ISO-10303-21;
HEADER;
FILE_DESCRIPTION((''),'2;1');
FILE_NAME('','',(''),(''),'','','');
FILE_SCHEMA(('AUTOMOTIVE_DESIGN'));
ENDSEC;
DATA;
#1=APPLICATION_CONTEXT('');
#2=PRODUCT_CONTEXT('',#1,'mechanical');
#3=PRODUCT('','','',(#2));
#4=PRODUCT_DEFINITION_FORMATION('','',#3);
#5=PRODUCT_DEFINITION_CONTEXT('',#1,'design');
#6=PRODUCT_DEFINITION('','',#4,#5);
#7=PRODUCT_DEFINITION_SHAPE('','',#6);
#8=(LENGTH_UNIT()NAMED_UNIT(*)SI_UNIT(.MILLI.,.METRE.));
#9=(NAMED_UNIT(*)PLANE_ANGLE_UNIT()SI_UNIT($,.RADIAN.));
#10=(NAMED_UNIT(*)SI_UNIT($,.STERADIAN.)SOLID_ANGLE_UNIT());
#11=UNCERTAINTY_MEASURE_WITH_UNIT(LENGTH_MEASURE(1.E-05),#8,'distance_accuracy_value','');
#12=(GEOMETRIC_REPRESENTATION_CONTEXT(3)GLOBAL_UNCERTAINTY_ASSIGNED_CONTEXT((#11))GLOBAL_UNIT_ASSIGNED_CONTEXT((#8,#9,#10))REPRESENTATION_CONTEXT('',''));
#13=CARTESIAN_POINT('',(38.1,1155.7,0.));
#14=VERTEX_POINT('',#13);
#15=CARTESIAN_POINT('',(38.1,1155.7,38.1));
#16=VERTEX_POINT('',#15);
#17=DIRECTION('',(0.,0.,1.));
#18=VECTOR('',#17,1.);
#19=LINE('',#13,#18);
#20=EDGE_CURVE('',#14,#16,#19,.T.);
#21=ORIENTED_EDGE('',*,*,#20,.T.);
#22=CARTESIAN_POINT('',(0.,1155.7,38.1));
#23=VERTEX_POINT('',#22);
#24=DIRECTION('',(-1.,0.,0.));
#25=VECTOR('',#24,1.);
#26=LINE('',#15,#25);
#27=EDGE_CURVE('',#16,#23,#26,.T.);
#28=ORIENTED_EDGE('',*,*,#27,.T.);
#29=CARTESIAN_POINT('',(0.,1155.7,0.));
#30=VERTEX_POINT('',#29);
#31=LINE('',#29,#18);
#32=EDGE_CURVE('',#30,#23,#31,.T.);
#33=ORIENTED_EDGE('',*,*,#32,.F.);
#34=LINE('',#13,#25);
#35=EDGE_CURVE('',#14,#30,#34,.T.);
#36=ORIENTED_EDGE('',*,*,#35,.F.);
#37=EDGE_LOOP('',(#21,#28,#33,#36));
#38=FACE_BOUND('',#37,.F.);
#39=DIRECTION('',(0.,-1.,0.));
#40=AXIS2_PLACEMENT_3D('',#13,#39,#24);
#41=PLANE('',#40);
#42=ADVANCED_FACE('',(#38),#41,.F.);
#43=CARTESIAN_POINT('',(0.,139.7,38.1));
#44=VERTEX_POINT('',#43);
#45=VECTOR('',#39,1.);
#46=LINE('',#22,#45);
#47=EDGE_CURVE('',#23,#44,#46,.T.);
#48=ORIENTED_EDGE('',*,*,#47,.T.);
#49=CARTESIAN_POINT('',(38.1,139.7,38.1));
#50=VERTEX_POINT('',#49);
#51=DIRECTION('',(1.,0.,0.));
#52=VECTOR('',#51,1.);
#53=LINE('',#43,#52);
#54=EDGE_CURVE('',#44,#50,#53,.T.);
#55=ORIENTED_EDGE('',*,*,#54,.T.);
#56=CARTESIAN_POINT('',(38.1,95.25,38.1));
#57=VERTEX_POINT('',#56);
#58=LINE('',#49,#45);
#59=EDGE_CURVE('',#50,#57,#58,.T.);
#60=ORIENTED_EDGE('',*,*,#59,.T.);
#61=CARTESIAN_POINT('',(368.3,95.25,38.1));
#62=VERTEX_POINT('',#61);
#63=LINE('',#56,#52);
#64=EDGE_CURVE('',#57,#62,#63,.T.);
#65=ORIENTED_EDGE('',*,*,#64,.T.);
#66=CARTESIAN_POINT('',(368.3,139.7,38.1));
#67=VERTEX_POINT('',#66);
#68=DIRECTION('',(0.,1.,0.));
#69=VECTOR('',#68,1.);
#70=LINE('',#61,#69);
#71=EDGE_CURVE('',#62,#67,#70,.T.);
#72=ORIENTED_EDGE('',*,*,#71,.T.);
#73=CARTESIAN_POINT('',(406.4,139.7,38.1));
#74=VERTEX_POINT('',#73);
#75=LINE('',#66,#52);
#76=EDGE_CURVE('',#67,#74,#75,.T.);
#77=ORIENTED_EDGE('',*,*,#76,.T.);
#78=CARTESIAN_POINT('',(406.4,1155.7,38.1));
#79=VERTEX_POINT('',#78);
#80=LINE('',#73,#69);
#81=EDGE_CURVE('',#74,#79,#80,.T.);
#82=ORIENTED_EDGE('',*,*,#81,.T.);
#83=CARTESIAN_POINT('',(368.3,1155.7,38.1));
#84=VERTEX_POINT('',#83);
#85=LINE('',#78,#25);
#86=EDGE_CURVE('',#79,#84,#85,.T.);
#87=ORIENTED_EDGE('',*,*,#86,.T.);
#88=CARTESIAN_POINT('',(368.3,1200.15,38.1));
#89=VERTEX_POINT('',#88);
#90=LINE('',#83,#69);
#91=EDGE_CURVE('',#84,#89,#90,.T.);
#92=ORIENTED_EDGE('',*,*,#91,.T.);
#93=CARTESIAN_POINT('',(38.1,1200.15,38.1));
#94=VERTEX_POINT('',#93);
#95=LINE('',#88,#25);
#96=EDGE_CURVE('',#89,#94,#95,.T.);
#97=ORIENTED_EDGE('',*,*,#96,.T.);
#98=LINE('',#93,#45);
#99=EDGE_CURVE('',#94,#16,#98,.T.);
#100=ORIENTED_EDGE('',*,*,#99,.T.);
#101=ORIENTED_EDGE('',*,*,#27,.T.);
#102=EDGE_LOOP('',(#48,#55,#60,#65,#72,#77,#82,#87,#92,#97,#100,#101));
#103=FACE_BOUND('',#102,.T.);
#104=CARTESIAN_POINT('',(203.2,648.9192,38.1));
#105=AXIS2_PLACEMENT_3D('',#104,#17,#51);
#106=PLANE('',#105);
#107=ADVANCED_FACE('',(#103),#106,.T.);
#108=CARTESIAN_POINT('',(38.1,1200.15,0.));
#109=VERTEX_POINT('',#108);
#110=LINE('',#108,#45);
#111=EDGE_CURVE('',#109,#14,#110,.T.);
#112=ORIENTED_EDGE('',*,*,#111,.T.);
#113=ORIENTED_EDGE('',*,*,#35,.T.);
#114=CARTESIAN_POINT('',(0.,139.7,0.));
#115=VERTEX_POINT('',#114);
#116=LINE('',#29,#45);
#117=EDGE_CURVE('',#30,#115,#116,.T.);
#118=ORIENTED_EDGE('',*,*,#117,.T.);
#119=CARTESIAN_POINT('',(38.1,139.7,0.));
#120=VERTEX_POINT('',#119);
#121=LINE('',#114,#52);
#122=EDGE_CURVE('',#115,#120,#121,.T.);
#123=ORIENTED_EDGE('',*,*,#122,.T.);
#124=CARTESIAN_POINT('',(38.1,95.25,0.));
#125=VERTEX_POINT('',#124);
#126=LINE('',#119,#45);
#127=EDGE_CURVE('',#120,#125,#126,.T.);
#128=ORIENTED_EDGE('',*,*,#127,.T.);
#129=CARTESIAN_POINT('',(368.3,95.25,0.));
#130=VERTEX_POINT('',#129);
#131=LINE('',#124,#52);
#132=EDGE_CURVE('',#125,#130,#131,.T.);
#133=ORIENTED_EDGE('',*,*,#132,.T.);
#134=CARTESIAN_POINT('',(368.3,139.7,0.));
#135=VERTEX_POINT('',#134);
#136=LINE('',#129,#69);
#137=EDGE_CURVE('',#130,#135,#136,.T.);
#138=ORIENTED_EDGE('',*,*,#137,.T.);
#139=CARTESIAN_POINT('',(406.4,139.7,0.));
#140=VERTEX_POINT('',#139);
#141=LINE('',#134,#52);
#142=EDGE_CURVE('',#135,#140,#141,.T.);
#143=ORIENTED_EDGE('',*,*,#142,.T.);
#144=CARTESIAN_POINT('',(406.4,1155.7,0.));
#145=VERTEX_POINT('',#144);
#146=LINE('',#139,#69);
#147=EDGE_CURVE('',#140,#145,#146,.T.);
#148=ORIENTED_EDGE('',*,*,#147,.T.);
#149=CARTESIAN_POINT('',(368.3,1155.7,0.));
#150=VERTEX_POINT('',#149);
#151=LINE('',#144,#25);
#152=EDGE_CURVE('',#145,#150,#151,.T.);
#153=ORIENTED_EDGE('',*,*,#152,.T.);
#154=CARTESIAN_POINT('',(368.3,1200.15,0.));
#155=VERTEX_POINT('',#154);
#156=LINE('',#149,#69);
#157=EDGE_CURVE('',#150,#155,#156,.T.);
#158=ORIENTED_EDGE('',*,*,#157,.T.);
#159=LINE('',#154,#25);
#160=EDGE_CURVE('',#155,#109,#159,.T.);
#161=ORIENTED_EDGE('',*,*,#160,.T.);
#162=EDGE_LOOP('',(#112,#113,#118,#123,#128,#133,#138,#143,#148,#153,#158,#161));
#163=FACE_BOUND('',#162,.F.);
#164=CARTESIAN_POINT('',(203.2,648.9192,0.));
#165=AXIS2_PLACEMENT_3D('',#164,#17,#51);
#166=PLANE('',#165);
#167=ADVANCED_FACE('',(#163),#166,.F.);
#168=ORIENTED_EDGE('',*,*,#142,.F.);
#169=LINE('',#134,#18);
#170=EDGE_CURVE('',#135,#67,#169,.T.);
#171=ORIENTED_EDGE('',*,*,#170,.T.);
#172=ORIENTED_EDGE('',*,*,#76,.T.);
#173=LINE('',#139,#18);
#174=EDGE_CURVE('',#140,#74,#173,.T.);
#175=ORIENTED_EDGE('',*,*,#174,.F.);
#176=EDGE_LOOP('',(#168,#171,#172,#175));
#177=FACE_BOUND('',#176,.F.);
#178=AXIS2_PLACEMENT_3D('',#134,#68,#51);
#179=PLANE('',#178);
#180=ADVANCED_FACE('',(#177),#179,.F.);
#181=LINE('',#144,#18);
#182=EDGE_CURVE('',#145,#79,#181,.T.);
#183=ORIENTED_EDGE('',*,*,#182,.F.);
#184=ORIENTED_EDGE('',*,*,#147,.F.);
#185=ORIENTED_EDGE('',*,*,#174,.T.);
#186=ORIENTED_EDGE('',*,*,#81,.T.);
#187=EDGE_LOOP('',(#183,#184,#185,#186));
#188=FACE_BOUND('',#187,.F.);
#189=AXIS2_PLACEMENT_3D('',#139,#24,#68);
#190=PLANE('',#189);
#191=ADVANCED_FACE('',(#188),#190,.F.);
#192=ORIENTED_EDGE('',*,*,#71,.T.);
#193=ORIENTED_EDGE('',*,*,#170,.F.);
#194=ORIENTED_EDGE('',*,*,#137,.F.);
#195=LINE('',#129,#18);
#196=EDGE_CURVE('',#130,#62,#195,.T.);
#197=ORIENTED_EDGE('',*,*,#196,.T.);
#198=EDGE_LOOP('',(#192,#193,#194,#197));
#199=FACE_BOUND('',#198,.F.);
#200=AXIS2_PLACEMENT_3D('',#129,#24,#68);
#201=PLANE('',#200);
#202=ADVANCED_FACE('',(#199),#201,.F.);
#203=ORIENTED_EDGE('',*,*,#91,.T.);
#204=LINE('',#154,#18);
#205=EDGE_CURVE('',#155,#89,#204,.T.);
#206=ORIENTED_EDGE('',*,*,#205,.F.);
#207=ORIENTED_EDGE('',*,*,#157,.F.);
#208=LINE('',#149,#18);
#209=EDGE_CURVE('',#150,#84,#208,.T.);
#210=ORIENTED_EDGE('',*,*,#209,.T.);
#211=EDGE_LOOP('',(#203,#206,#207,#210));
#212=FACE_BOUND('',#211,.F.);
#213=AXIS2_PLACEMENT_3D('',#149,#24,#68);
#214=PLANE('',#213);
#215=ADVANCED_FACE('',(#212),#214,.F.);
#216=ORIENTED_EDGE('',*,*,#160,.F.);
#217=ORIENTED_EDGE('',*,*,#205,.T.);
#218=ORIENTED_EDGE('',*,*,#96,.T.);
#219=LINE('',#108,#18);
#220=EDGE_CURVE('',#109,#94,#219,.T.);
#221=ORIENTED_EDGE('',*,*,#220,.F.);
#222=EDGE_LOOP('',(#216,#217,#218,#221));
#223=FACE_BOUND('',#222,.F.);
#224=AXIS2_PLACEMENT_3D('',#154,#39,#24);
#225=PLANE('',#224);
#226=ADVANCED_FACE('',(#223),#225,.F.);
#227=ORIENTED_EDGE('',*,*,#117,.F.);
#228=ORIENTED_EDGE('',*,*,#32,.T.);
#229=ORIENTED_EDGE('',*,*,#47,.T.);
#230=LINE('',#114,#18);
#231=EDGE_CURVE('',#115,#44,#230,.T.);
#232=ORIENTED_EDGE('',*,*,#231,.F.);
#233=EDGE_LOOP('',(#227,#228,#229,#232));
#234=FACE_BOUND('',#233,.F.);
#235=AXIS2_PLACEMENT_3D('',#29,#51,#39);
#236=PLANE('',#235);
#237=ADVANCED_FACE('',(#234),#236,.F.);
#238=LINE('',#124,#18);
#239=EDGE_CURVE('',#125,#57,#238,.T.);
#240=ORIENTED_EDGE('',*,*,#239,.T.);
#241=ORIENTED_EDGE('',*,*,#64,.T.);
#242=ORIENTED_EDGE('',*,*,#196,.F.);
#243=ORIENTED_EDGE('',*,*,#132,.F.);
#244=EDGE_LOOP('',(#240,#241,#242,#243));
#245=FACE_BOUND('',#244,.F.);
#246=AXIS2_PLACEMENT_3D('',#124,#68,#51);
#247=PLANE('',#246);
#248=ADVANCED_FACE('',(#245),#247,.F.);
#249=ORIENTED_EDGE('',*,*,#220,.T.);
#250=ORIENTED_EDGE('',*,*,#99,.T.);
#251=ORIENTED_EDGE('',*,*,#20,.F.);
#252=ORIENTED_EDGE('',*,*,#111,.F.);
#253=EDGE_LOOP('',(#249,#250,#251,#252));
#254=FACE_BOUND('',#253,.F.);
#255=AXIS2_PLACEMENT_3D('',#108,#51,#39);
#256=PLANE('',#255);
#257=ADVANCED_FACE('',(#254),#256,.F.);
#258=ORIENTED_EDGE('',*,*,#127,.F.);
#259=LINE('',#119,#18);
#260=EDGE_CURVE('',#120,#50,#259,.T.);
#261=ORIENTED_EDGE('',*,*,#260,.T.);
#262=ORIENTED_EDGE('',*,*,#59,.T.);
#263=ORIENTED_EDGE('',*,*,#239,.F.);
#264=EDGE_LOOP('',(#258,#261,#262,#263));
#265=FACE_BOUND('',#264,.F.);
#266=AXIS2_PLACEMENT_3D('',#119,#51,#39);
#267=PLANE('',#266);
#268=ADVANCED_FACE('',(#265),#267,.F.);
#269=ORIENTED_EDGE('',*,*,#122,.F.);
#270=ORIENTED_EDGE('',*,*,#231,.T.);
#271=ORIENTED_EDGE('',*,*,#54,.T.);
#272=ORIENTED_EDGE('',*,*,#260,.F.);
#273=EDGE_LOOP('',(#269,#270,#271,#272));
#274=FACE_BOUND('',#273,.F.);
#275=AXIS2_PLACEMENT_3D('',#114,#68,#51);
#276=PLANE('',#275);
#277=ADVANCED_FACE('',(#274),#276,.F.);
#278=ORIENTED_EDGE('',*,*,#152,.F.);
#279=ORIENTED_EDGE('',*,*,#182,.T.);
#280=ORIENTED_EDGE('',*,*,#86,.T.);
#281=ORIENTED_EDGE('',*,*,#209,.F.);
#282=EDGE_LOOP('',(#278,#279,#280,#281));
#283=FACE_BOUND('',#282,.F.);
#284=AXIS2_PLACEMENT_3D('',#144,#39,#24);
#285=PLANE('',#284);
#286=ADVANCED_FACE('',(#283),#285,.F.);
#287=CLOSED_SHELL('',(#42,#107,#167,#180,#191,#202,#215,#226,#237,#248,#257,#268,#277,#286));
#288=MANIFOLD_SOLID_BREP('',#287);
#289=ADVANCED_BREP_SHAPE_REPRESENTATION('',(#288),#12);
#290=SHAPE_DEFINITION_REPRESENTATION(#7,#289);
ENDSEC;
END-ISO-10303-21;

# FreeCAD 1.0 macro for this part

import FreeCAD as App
import Part
import Sketcher

V = App.Vector
Q = App.Units.Quantity

doc = App.newDocument("Part")
params = doc.addObject("Spreadsheet::Sheet", "Params")
for row, (alias, value) in enumerate([
    ("sketch1_width", "13 in"),
    ("sketch1_height", "40 in"),
    ("sketch1_width2", "1.5 in"),
    ("sketch1_height2", "1.75 in"),
    ("pad1_length", "1.5 in"),
], start=1):
    params.set(f"A{row}", alias)
    params.set(f"B{row}", "=" + value)
    params.setAlias(f"B{row}", alias)

body = doc.addObject("PartDesign::Body", "Body")

# Sketch on XY plane
sketch1 = body.newObject("Sketcher::SketchObject", "Sketch")
sketch1.AttachmentSupport = (doc.getObject("XY_Plane"), [""])
sketch1.MapMode = "FlatFace"
sketch1.addGeometry([
    Part.LineSegment(V(0, 1156, 0), V(0, 140, 0)),  # 0
    Part.LineSegment(V(0, 140, 0), V(38, 140, 0)),  # 1
    Part.LineSegment(V(38, 140, 0), V(38, 95, 0)),  # 2
    Part.LineSegment(V(38, 95, 0), V(368, 95, 0)),  # 3
    Part.LineSegment(V(368, 95, 0), V(368, 140, 0)),  # 4
    Part.LineSegment(V(368, 140, 0), V(406, 140, 0)),  # 5
    Part.LineSegment(V(406, 140, 0), V(406, 1156, 0)),  # 6
    Part.LineSegment(V(406, 1156, 0), V(368, 1156, 0)),  # 7
    Part.LineSegment(V(368, 1156, 0), V(368, 1200, 0)),  # 8
    Part.LineSegment(V(368, 1200, 0), V(38, 1200, 0)),  # 9
    Part.LineSegment(V(38, 1200, 0), V(38, 1156, 0)),  # 10
    Part.LineSegment(V(38, 1156, 0), V(0, 1156, 0)),  # 11
], False)
sketch1.addConstraint([
    Sketcher.Constraint("Coincident", 0, 2, 1, 1),
    Sketcher.Constraint("Coincident", 1, 2, 2, 1),
    Sketcher.Constraint("Coincident", 2, 2, 3, 1),
    Sketcher.Constraint("Coincident", 3, 2, 4, 1),
    Sketcher.Constraint("Coincident", 4, 2, 5, 1),
    Sketcher.Constraint("Coincident", 5, 2, 6, 1),
    Sketcher.Constraint("Coincident", 6, 2, 7, 1),
    Sketcher.Constraint("Coincident", 7, 2, 8, 1),
    Sketcher.Constraint("Coincident", 8, 2, 9, 1),
    Sketcher.Constraint("Coincident", 9, 2, 10, 1),
    Sketcher.Constraint("Coincident", 10, 2, 11, 1),
    Sketcher.Constraint("Coincident", 11, 2, 0, 1),
    Sketcher.Constraint("Vertical", 0),
    Sketcher.Constraint("Horizontal", 1),
    Sketcher.Constraint("Vertical", 2),
    Sketcher.Constraint("Horizontal", 3),
    Sketcher.Constraint("Vertical", 4),
    Sketcher.Constraint("Horizontal", 5),
    Sketcher.Constraint("Vertical", 6),
    Sketcher.Constraint("Horizontal", 7),
    Sketcher.Constraint("Vertical", 8),
    Sketcher.Constraint("Horizontal", 9),
    Sketcher.Constraint("Vertical", 10),
    Sketcher.Constraint("Horizontal", 11),
    Sketcher.Constraint("PointOnObject", 0, 2, -2),
    Sketcher.Constraint("Horizontal", 1, 2, 4, 2),
    Sketcher.Constraint("Horizontal", 7, 2, 10, 2),
    Sketcher.Constraint("Vertical", 4, 2, 7, 2),
    Sketcher.Constraint("Vertical", 2, 2, 9, 2),
    Sketcher.Constraint("Equal", 1, 5),
    Sketcher.Constraint("Equal", 4, 8),
    Sketcher.Constraint("DistanceX", 3, 1, 3, 2, Q("13 in")),
    Sketcher.Constraint("DistanceY", 0, 2, 0, 1, Q("40 in")),
    Sketcher.Constraint("DistanceX", 1, 1, 1, 2, Q("1.5 in")),
    Sketcher.Constraint("DistanceY", 2, 2, 2, 1, Q("1.75 in")),
    Sketcher.Constraint("DistanceY", -1, 1, 0, 2, Q("5.5 in")),
])
sketch1.setExpression("Constraints[31]", "Params.sketch1_width")
sketch1.setExpression("Constraints[32]", "Params.sketch1_height")
sketch1.setExpression("Constraints[33]", "Params.sketch1_width2")
sketch1.setExpression("Constraints[34]", "Params.sketch1_height2")
pad1 = body.newObject("PartDesign::Pad", "Pad")
pad1.Profile = sketch1
pad1.setExpression("Length", "Params.pad1_length")

doc.recompute()
